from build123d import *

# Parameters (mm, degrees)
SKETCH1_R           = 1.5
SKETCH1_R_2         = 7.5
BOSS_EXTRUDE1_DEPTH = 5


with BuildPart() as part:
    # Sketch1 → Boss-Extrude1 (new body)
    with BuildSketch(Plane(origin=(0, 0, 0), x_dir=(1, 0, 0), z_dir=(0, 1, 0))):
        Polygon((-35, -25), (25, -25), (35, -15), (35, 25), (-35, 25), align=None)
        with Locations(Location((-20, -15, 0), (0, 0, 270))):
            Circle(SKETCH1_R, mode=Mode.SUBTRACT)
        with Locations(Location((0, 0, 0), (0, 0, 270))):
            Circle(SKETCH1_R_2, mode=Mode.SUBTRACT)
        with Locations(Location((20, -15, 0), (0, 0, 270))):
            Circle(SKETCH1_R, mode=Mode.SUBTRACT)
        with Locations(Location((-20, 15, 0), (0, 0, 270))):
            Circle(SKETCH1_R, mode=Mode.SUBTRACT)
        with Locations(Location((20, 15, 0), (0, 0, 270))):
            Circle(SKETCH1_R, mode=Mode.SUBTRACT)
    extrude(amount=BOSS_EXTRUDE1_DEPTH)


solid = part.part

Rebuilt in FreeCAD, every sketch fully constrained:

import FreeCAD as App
import Part
import Sketcher
from FreeCAD import Vector


def add_polygon(sketch, points):
    """Adds a closed chain of lines whose ends are joined by coincident constraints."""
    first, n = sketch.GeometryCount, len(points)
    for a, b in zip(points, points[1:] + points[:1]):
        sketch.addGeometry(Part.LineSegment(App.Vector(*a, 0), App.Vector(*b, 0)), False)
    for i in range(n):
        sketch.addConstraint(Sketcher.Constraint("Coincident", first + i, 2, first + (i + 1) % n, 1))

doc = App.newDocument("Part")
body = doc.addObject("PartDesign::Body", "Body")

sketch1 = body.newObject("Sketcher::SketchObject", "Sketch")
sketch1.AttachmentSupport = (doc.getObject("XZ_Plane"), [""])
sketch1.MapMode = "FlatFace"
add_polygon(sketch1, [(-35, 25), (25, 25), (35, 15), (35, -25), (-35, -25)])
sketch1.addGeometry(Part.Circle(Vector(-20, 15, 0), Vector(0, 0, 1), 1.5), False)
sketch1.addGeometry(Part.Circle(Vector(20, 15, 0), Vector(0, 0, 1), 1.5), False)
sketch1.addGeometry(Part.Circle(Vector(-20, -15, 0), Vector(0, 0, 1), 1.5), False)
sketch1.addGeometry(Part.Circle(Vector(0, 0, 0), Vector(0, 0, 1), 7.5), False)
sketch1.addGeometry(Part.Circle(Vector(20, -15, 0), Vector(0, 0, 1), 1.5), False)
sketch1.addConstraint([
    Sketcher.Constraint("Horizontal", 0),
    Sketcher.Constraint("Vertical", 2),
    Sketcher.Constraint("Horizontal", 3),
    Sketcher.Constraint("Vertical", 4),
    Sketcher.Constraint("Coincident", 8, 3, -1, 1),
    Sketcher.Constraint("Equal", 5, 6),
    Sketcher.Constraint("Equal", 6, 7),
    Sketcher.Constraint("Equal", 7, 9),
    Sketcher.Constraint("Symmetric", 6, 3, 7, 3, -1, 1),
    Sketcher.Constraint("Symmetric", 5, 3, 9, 3, -1, 1),
    Sketcher.Constraint("Symmetric", 2, 2, 4, 2, -1, 1),
    Sketcher.Constraint("Symmetric", 5, 3, 6, 3, -2),
    Sketcher.Constraint("Horizontal", 6, 3, 1, 2),
    Sketcher.Constraint("Diameter", 5, 3.0),
    Sketcher.Constraint("Diameter", 8, 15.0),
    Sketcher.Constraint("DistanceX", 0, 1, 0, 2, 60.0),
    Sketcher.Constraint("DistanceX", 3, 2, 3, 1, 70.0),
    Sketcher.Constraint("DistanceY", 2, 2, 2, 1, 40.0),
    Sketcher.Constraint("DistanceY", 4, 1, 4, 2, 50.0),
    Sketcher.Constraint("DistanceX", 5, 3, -1, 1, 20.0),
])
pad1 = body.newObject("PartDesign::Pad", "Pad")
pad1.Profile = sketch1
pad1.Length = 5
pad1.Reversed = True

doc.recompute()
